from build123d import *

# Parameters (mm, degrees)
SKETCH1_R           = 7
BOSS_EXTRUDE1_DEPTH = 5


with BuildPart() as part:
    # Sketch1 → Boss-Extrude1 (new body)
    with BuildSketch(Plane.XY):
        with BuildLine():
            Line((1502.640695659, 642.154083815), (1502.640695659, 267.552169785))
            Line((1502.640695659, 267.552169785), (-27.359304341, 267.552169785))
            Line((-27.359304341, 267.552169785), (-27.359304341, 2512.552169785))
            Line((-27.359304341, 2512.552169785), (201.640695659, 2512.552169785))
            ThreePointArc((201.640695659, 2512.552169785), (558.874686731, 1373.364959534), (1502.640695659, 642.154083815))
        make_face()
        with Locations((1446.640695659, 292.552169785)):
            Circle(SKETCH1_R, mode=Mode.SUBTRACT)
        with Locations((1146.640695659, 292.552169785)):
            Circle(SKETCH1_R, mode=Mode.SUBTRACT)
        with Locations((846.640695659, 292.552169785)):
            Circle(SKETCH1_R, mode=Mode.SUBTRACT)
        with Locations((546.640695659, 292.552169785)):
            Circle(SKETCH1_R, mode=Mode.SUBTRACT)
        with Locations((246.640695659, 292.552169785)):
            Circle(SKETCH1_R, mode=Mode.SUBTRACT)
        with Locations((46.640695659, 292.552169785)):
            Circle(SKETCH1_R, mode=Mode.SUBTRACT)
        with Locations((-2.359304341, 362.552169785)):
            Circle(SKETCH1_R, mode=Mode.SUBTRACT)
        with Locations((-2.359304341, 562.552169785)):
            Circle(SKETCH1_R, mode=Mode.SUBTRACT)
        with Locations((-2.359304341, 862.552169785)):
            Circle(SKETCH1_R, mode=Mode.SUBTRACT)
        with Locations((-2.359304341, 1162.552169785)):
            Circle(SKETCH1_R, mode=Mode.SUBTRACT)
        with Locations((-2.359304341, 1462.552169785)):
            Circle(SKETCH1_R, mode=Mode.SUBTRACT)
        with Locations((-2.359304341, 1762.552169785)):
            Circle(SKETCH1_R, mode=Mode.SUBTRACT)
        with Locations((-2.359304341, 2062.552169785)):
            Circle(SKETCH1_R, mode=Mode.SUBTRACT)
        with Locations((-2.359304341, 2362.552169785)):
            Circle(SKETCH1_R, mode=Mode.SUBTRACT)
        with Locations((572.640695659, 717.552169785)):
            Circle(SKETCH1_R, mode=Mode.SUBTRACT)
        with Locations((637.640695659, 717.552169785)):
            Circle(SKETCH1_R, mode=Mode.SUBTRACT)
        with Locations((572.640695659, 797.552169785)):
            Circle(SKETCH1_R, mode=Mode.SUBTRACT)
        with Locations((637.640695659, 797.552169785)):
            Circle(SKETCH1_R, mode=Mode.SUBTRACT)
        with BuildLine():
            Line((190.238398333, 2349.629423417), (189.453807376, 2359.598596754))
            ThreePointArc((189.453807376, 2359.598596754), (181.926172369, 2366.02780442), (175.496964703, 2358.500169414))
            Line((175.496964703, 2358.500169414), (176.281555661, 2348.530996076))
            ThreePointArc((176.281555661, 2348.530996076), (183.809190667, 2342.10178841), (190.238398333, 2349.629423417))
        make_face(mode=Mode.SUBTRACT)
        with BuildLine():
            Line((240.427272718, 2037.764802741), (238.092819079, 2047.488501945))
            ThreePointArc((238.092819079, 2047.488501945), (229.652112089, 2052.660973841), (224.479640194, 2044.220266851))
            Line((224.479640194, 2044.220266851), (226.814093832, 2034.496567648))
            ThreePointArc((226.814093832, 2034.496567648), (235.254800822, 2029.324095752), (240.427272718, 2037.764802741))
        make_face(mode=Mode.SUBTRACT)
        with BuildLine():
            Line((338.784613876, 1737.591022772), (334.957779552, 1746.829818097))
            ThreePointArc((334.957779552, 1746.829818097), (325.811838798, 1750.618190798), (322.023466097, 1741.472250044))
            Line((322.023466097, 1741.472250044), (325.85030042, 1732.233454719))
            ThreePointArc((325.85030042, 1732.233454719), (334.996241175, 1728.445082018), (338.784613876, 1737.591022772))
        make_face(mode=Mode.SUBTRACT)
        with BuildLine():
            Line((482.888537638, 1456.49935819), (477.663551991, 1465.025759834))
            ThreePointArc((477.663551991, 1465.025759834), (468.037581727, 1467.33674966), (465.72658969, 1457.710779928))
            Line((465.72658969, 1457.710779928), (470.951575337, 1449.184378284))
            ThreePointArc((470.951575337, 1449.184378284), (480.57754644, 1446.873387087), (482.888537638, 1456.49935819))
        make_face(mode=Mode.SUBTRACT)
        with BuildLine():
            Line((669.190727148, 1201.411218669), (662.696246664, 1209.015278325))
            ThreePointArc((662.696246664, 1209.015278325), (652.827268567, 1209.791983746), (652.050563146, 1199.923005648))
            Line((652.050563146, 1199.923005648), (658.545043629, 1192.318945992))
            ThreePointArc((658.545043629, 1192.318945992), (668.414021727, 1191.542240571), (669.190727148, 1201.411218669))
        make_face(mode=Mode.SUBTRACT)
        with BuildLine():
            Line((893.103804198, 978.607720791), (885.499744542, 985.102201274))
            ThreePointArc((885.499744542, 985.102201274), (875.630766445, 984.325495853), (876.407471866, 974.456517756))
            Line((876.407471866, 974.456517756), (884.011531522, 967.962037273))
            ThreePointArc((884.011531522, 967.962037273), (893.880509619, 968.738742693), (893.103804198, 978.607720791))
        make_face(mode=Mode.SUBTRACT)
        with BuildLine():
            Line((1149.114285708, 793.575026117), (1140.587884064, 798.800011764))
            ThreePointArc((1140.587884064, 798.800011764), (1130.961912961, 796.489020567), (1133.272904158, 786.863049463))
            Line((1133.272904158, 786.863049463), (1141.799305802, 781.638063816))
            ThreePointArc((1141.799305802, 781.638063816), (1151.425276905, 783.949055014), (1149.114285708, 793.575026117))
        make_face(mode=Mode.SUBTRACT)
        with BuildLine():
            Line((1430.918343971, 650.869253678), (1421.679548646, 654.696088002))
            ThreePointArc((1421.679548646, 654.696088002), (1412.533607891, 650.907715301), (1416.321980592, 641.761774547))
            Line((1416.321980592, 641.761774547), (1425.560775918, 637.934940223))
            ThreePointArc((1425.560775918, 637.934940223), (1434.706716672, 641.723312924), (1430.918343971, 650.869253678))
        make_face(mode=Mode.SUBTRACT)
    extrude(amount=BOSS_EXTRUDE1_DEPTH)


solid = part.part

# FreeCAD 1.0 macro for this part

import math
import FreeCAD as App
import Part
import Sketcher
from FreeCAD import Vector
Q = App.Units.Quantity

doc = App.newDocument("Part")
params = doc.addObject("Spreadsheet::Sheet", "Params")
for row, (alias, value) in enumerate([
    ("sketch1_diameter", "14 mm"),
    ("sketch1_radius", "1995 mm"),
    ("sketch1_width", "229 mm"),
    ("sketch1_width2", "1530 mm"),
    ("sketch1_height", "2245 mm"),
    ("pad1_length", "5 mm"),
], start=1):
    params.set(f"A{row}", alias)
    params.set(f"B{row}", "=" + value)
    params.setAlias(f"B{row}", alias)

body = doc.addObject("PartDesign::Body", "Body")

sketch1 = body.newObject("Sketcher::SketchObject", "Sketch")
sketch1.AttachmentSupport = (doc.getObject("XY_Plane"), [""])
sketch1.MapMode = "FlatFace"
sketch1.addGeometry([
    Part.LineSegment(Vector(1503, 268, 0), Vector(1503, 642, 0)),
    Part.ArcOfCircle(Part.Circle(Vector(2197, 2513, 0), Vector(0, 0, 1), 1995), math.radians(-180), math.radians(-110)),
    Part.LineSegment(Vector(202, 2513, 0), Vector(-27, 2513, 0)),
    Part.LineSegment(Vector(-27, 2513, 0), Vector(-27, 268, 0)),
    Part.LineSegment(Vector(-27, 268, 0), Vector(1503, 268, 0)),
    Part.Circle(Vector(1447, 293, 0), Vector(0, 0, 1), 7),
    Part.Circle(Vector(1147, 293, 0), Vector(0, 0, 1), 7),
    Part.ArcOfCircle(Part.Circle(Vector(1428, 644, 0), Vector(0, 0, 1), 7), math.radians(-113), math.radians(68)),
    Part.LineSegment(Vector(1426, 638, 0), Vector(1416, 642, 0)),
    Part.ArcOfCircle(Part.Circle(Vector(1419, 648, 0), Vector(0, 0, 1), 7), math.radians(67), math.radians(247)),
    Part.LineSegment(Vector(1422, 655, 0), Vector(1431, 651, 0)),
    Part.ArcOfCircle(Part.Circle(Vector(1145, 788, 0), Vector(0, 0, 1), 7), math.radians(-121), math.radians(58)),
    Part.LineSegment(Vector(1142, 782, 0), Vector(1133, 787, 0)),
    Part.ArcOfCircle(Part.Circle(Vector(1137, 793, 0), Vector(0, 0, 1), 7), math.radians(59), math.radians(238)),
    Part.LineSegment(Vector(1141, 799, 0), Vector(1149, 794, 0)),
    Part.Circle(Vector(847, 293, 0), Vector(0, 0, 1), 7),
    Part.ArcOfCircle(Part.Circle(Vector(889, 973, 0), Vector(0, 0, 1), 7), math.radians(-130), math.radians(50)),
    Part.LineSegment(Vector(884, 968, 0), Vector(876, 974, 0)),
    Part.ArcOfCircle(Part.Circle(Vector(881, 980, 0), Vector(0, 0, 1), 7), math.radians(50), math.radians(230)),
    Part.LineSegment(Vector(885, 985, 0), Vector(893, 979, 0)),
    Part.Circle(Vector(547, 293, 0), Vector(0, 0, 1), 7),
    Part.Circle(Vector(638, 718, 0), Vector(0, 0, 1), 7),
    Part.Circle(Vector(638, 798, 0), Vector(0, 0, 1), 7),
    Part.Circle(Vector(573, 718, 0), Vector(0, 0, 1), 7),
    Part.Circle(Vector(573, 798, 0), Vector(0, 0, 1), 7),
    Part.Circle(Vector(247, 293, 0), Vector(0, 0, 1), 7),
    Part.Circle(Vector(47, 293, 0), Vector(0, 0, 1), 7),
    Part.Circle(Vector(-2, 363, 0), Vector(0, 0, 1), 7),
    Part.Circle(Vector(-2, 563, 0), Vector(0, 0, 1), 7),
    Part.ArcOfCircle(Part.Circle(Vector(664, 1197, 0), Vector(0, 0, 1), 7), math.radians(-140), math.radians(41)),
    Part.LineSegment(Vector(659, 1192, 0), Vector(652, 1200, 0)),
    Part.ArcOfCircle(Part.Circle(Vector(657, 1204, 0), Vector(0, 0, 1), 7), math.radians(40), math.radians(221)),
    Part.LineSegment(Vector(663, 1209, 0), Vector(669, 1201, 0)),
    Part.Circle(Vector(-2, 863, 0), Vector(0, 0, 1), 7),
    Part.Circle(Vector(-2, 1163, 0), Vector(0, 0, 1), 7),
    Part.ArcOfCircle(Part.Circle(Vector(477, 1453, 0), Vector(0, 0, 1), 7), math.radians(-148), math.radians(31)),
    Part.LineSegment(Vector(471, 1449, 0), Vector(466, 1458, 0)),
    Part.ArcOfCircle(Part.Circle(Vector(472, 1461, 0), Vector(0, 0, 1), 7), math.radians(32), math.radians(211)),
    Part.LineSegment(Vector(478, 1465, 0), Vector(483, 1456, 0)),
    Part.Circle(Vector(-2, 1463, 0), Vector(0, 0, 1), 7),
    Part.ArcOfCircle(Part.Circle(Vector(332, 1735, 0), Vector(0, 0, 1), 7), math.radians(-157), math.radians(22)),
    Part.LineSegment(Vector(326, 1732, 0), Vector(322, 1741, 0)),
    Part.ArcOfCircle(Part.Circle(Vector(328, 1744, 0), Vector(0, 0, 1), 7), math.radians(23), math.radians(202)),
    Part.LineSegment(Vector(335, 1747, 0), Vector(339, 1738, 0)),
    Part.Circle(Vector(-2, 1763, 0), Vector(0, 0, 1), 7),
    Part.ArcOfCircle(Part.Circle(Vector(234, 2036, 0), Vector(0, 0, 1), 7), math.radians(-167), math.radians(13)),
    Part.LineSegment(Vector(227, 2034, 0), Vector(224, 2044, 0)),
    Part.ArcOfCircle(Part.Circle(Vector(231, 2046, 0), Vector(0, 0, 1), 7), math.radians(13), math.radians(194)),
    Part.LineSegment(Vector(238, 2047, 0), Vector(240, 2038, 0)),
    Part.Circle(Vector(-2, 2063, 0), Vector(0, 0, 1), 7),
    Part.ArcOfCircle(Part.Circle(Vector(183, 2349, 0), Vector(0, 0, 1), 7), math.radians(-176), math.radians(5)),
    Part.LineSegment(Vector(176, 2349, 0), Vector(175, 2359, 0)),
    Part.ArcOfCircle(Part.Circle(Vector(182, 2359, 0), Vector(0, 0, 1), 7), math.radians(4), math.radians(184)),
    Part.LineSegment(Vector(189, 2360, 0), Vector(190, 2350, 0)),
    Part.Circle(Vector(-2, 2363, 0), Vector(0, 0, 1), 7),
], False)
sketch1.addConstraint([
    Sketcher.Constraint("Coincident", 0, 2, 1, 2),
    Sketcher.Constraint("Coincident", 1, 1, 2, 1),
    Sketcher.Constraint("Coincident", 2, 2, 3, 1),
    Sketcher.Constraint("Coincident", 3, 2, 4, 1),
    Sketcher.Constraint("Coincident", 4, 2, 0, 1),
    Sketcher.Constraint("Tangent", 7, 1, 8, 1),
    Sketcher.Constraint("Tangent", 8, 2, 9, 2),
    Sketcher.Constraint("Tangent", 9, 1, 10, 1),
    Sketcher.Constraint("Tangent", 10, 2, 7, 2),
    Sketcher.Constraint("Tangent", 11, 1, 12, 1),
    Sketcher.Constraint("Tangent", 12, 2, 13, 2),
    Sketcher.Constraint("Tangent", 13, 1, 14, 1),
    Sketcher.Constraint("Tangent", 14, 2, 11, 2),
    Sketcher.Constraint("Tangent", 16, 1, 17, 1),
    Sketcher.Constraint("Tangent", 17, 2, 18, 2),
    Sketcher.Constraint("Tangent", 18, 1, 19, 1),
    Sketcher.Constraint("Tangent", 19, 2, 16, 2),
    Sketcher.Constraint("Tangent", 29, 1, 30, 1),
    Sketcher.Constraint("Tangent", 30, 2, 31, 2),
    Sketcher.Constraint("Tangent", 31, 1, 32, 1),
    Sketcher.Constraint("Tangent", 32, 2, 29, 2),
    Sketcher.Constraint("Tangent", 35, 1, 36, 1),
    Sketcher.Constraint("Tangent", 36, 2, 37, 2),
    Sketcher.Constraint("Tangent", 37, 1, 38, 1),
    Sketcher.Constraint("Tangent", 38, 2, 35, 2),
    Sketcher.Constraint("Tangent", 40, 1, 41, 1),
    Sketcher.Constraint("Tangent", 41, 2, 42, 2),
    Sketcher.Constraint("Tangent", 42, 1, 43, 1),
    Sketcher.Constraint("Tangent", 43, 2, 40, 2),
    Sketcher.Constraint("Tangent", 45, 1, 46, 1),
    Sketcher.Constraint("Tangent", 46, 2, 47, 2),
    Sketcher.Constraint("Tangent", 47, 1, 48, 1),
    Sketcher.Constraint("Tangent", 48, 2, 45, 2),
    Sketcher.Constraint("Tangent", 50, 1, 51, 1),
    Sketcher.Constraint("Tangent", 51, 2, 52, 2),
    Sketcher.Constraint("Tangent", 52, 1, 53, 1),
    Sketcher.Constraint("Tangent", 53, 2, 50, 2),
    Sketcher.Constraint("Vertical", 0),
    Sketcher.Constraint("Horizontal", 2),
    Sketcher.Constraint("Vertical", 3),
    Sketcher.Constraint("Horizontal", 4),
    Sketcher.Constraint("Equal", 5, 6),
    Sketcher.Constraint("Equal", 6, 7),
    Sketcher.Constraint("Equal", 7, 9),
    Sketcher.Constraint("Equal", 9, 11),
    Sketcher.Constraint("Equal", 11, 13),
    Sketcher.Constraint("Equal", 13, 15),
    Sketcher.Constraint("Equal", 15, 16),
    Sketcher.Constraint("Equal", 16, 18),
    Sketcher.Constraint("Equal", 18, 20),
    Sketcher.Constraint("Equal", 20, 21),
    Sketcher.Constraint("Equal", 21, 22),
    Sketcher.Constraint("Equal", 22, 23),
    Sketcher.Constraint("Equal", 23, 24),
    Sketcher.Constraint("Equal", 24, 25),
    Sketcher.Constraint("Equal", 25, 26),
    Sketcher.Constraint("Equal", 26, 27),
    Sketcher.Constraint("Equal", 27, 28),
    Sketcher.Constraint("Equal", 28, 29),
    Sketcher.Constraint("Equal", 29, 31),
    Sketcher.Constraint("Equal", 31, 33),
    Sketcher.Constraint("Equal", 33, 34),
    Sketcher.Constraint("Equal", 34, 35),
    Sketcher.Constraint("Equal", 35, 37),
    Sketcher.Constraint("Equal", 37, 39),
    Sketcher.Constraint("Equal", 39, 40),
    Sketcher.Constraint("Equal", 40, 42),
    Sketcher.Constraint("Equal", 42, 44),
    Sketcher.Constraint("Equal", 44, 45),
    Sketcher.Constraint("Equal", 45, 47),
    Sketcher.Constraint("Equal", 47, 49),
    Sketcher.Constraint("Equal", 49, 50),
    Sketcher.Constraint("Equal", 50, 52),
    Sketcher.Constraint("Equal", 52, 54),
    Sketcher.Constraint("Horizontal", 5, 3, 6, 3),
    Sketcher.Constraint("Horizontal", 6, 3, 15, 3),
    Sketcher.Constraint("Horizontal", 15, 3, 20, 3),
    Sketcher.Constraint("Horizontal", 21, 3, 23, 3),
    Sketcher.Constraint("Horizontal", 22, 3, 24, 3),
    Sketcher.Constraint("Horizontal", 20, 3, 25, 3),
    Sketcher.Constraint("Horizontal", 25, 3, 26, 3),
    Sketcher.Constraint("Vertical", 21, 3, 22, 3),
    Sketcher.Constraint("Vertical", 23, 3, 24, 3),
    Sketcher.Constraint("Vertical", 27, 3, 28, 3),
    Sketcher.Constraint("Vertical", 28, 3, 33, 3),
    Sketcher.Constraint("Vertical", 33, 3, 34, 3),
    Sketcher.Constraint("Vertical", 34, 3, 39, 3),
    Sketcher.Constraint("Vertical", 39, 3, 44, 3),
    Sketcher.Constraint("Vertical", 44, 3, 49, 3),
    Sketcher.Constraint("Vertical", 49, 3, 54, 3),
    Sketcher.Constraint("Equal", 10, 12),
    Sketcher.Constraint("Equal", 14, 17),
    Sketcher.Constraint("Equal", 19, 30),
    Sketcher.Constraint("Equal", 32, 36),
    Sketcher.Constraint("Equal", 38, 41),
    Sketcher.Constraint("Equal", 43, 46),
    Sketcher.Constraint("Equal", 48, 51),
    Sketcher.Constraint("Diameter", 5, 14.0),
    Sketcher.Constraint("Radius", 1, 1995.0),
    Sketcher.Constraint("DistanceX", 2, 2, 2, 1, 229.0),
    Sketcher.Constraint("DistanceX", 4, 1, 4, 2, 1530.0),
    Sketcher.Constraint("DistanceY", 3, 2, 3, 1, 2245.0),
    Sketcher.Constraint("Distance", 8, 10.0),
    Sketcher.Constraint("Angle", 8, Q("157.5 deg")),
    Sketcher.Constraint("Angle", 12, Q("148.5 deg")),
    Sketcher.Constraint("Angle", 17, Q("139.5 deg")),
    Sketcher.Constraint("Angle", 30, Q("130.5 deg")),
    Sketcher.Constraint("Angle", 36, Q("121.5 deg")),
    Sketcher.Constraint("Angle", 41, Q("112.5 deg")),
    Sketcher.Constraint("Angle", 46, Q("103.5 deg")),
    Sketcher.Constraint("Angle", 51, Q("94.5 deg")),
    Sketcher.Constraint("DistanceY", -1, 1, 18, 1, 985.102201),
    Sketcher.Constraint("DistanceX", -1, 1, 40, 1, 325.8503),
    Sketcher.Constraint("DistanceY", -1, 1, 47, 1, 2047.488502),
    Sketcher.Constraint("DistanceX", -1, 1, 53, 2, 190.238398),
    Sketcher.Constraint("DistanceY", 0, 1, 0, 2, 374.601914),
    Sketcher.Constraint("DistanceY", -1, 1, 1, 3, 2512.55217),
    Sketcher.Constraint("DistanceY", -1, 1, 5, 3, 292.55217),
    Sketcher.Constraint("DistanceX", -1, 1, 7, 3, 1428.23956),
    Sketcher.Constraint("DistanceY", -1, 1, 9, 3, 648.228931),
    Sketcher.Constraint("DistanceY", -1, 1, 13, 3, 792.831531),
    Sketcher.Constraint("DistanceX", -1, 1, 18, 3, 880.953608),
    Sketcher.Constraint("DistanceY", -1, 1, 21, 3, 717.55217),
    Sketcher.Constraint("DistanceY", -1, 1, 22, 3, 797.55217),
    Sketcher.Constraint("DistanceY", -1, 1, 27, 3, 362.55217),
    Sketcher.Constraint("DistanceY", -1, 1, 28, 3, 562.55217),
    Sketcher.Constraint("DistanceY", -1, 1, 31, 3, 1204.469142),
    Sketcher.Constraint("DistanceY", -1, 1, 33, 3, 862.55217),
    Sketcher.Constraint("DistanceY", -1, 1, 34, 3, 1162.55217),
    Sketcher.Constraint("DistanceY", -1, 1, 35, 3, 1452.841868),
    Sketcher.Constraint("DistanceX", -1, 1, 37, 3, 471.695072),
    Sketcher.Constraint("DistanceY", -1, 1, 39, 3, 1462.55217),
    Sketcher.Constraint("DistanceY", -1, 1, 40, 3, 1734.912239),
    Sketcher.Constraint("DistanceY", -1, 1, 44, 3, 1762.55217),
    Sketcher.Constraint("DistanceX", -1, 1, 47, 3, 231.28623),
    Sketcher.Constraint("DistanceY", -1, 1, 49, 3, 2062.55217),
    Sketcher.Constraint("DistanceY", -1, 1, 50, 3, 2349.08021),
    Sketcher.Constraint("DistanceY", -1, 1, 54, 3, 2362.55217),
    Sketcher.Constraint("DistanceX", -1, 1, 1, 3, 2196.640696),
    Sketcher.Constraint("DistanceX", -1, 1, 5, 3, 1446.640696),
    Sketcher.Constraint("DistanceX", -1, 1, 6, 3, 1146.640696),
    Sketcher.Constraint("DistanceX", -1, 1, 11, 3, 1145.456796),
    Sketcher.Constraint("DistanceX", -1, 1, 15, 3, 846.640696),
    Sketcher.Constraint("DistanceX", -1, 1, 20, 3, 546.640696),
    Sketcher.Constraint("DistanceX", -1, 1, 21, 3, 637.640696),
    Sketcher.Constraint("DistanceX", -1, 1, 23, 3, 572.640696),
    Sketcher.Constraint("DistanceX", -1, 1, 25, 3, 246.640696),
    Sketcher.Constraint("DistanceX", -1, 1, 26, 3, 46.640696),
    Sketcher.Constraint("DistanceX", 27, 3, -1, 1, 2.359304),
    Sketcher.Constraint("DistanceX", -1, 1, 29, 3, 663.867885),
])
sketch1.setExpression("Constraints[97]", "Params.sketch1_diameter")
sketch1.setExpression("Constraints[98]", "Params.sketch1_radius")
sketch1.setExpression("Constraints[99]", "Params.sketch1_width")
sketch1.setExpression("Constraints[100]", "Params.sketch1_width2")
sketch1.setExpression("Constraints[101]", "Params.sketch1_height")
pad1 = body.newObject("PartDesign::Pad", "Pad")
pad1.Profile = sketch1
pad1.setExpression("Length", "Params.pad1_length")

doc.recompute()
